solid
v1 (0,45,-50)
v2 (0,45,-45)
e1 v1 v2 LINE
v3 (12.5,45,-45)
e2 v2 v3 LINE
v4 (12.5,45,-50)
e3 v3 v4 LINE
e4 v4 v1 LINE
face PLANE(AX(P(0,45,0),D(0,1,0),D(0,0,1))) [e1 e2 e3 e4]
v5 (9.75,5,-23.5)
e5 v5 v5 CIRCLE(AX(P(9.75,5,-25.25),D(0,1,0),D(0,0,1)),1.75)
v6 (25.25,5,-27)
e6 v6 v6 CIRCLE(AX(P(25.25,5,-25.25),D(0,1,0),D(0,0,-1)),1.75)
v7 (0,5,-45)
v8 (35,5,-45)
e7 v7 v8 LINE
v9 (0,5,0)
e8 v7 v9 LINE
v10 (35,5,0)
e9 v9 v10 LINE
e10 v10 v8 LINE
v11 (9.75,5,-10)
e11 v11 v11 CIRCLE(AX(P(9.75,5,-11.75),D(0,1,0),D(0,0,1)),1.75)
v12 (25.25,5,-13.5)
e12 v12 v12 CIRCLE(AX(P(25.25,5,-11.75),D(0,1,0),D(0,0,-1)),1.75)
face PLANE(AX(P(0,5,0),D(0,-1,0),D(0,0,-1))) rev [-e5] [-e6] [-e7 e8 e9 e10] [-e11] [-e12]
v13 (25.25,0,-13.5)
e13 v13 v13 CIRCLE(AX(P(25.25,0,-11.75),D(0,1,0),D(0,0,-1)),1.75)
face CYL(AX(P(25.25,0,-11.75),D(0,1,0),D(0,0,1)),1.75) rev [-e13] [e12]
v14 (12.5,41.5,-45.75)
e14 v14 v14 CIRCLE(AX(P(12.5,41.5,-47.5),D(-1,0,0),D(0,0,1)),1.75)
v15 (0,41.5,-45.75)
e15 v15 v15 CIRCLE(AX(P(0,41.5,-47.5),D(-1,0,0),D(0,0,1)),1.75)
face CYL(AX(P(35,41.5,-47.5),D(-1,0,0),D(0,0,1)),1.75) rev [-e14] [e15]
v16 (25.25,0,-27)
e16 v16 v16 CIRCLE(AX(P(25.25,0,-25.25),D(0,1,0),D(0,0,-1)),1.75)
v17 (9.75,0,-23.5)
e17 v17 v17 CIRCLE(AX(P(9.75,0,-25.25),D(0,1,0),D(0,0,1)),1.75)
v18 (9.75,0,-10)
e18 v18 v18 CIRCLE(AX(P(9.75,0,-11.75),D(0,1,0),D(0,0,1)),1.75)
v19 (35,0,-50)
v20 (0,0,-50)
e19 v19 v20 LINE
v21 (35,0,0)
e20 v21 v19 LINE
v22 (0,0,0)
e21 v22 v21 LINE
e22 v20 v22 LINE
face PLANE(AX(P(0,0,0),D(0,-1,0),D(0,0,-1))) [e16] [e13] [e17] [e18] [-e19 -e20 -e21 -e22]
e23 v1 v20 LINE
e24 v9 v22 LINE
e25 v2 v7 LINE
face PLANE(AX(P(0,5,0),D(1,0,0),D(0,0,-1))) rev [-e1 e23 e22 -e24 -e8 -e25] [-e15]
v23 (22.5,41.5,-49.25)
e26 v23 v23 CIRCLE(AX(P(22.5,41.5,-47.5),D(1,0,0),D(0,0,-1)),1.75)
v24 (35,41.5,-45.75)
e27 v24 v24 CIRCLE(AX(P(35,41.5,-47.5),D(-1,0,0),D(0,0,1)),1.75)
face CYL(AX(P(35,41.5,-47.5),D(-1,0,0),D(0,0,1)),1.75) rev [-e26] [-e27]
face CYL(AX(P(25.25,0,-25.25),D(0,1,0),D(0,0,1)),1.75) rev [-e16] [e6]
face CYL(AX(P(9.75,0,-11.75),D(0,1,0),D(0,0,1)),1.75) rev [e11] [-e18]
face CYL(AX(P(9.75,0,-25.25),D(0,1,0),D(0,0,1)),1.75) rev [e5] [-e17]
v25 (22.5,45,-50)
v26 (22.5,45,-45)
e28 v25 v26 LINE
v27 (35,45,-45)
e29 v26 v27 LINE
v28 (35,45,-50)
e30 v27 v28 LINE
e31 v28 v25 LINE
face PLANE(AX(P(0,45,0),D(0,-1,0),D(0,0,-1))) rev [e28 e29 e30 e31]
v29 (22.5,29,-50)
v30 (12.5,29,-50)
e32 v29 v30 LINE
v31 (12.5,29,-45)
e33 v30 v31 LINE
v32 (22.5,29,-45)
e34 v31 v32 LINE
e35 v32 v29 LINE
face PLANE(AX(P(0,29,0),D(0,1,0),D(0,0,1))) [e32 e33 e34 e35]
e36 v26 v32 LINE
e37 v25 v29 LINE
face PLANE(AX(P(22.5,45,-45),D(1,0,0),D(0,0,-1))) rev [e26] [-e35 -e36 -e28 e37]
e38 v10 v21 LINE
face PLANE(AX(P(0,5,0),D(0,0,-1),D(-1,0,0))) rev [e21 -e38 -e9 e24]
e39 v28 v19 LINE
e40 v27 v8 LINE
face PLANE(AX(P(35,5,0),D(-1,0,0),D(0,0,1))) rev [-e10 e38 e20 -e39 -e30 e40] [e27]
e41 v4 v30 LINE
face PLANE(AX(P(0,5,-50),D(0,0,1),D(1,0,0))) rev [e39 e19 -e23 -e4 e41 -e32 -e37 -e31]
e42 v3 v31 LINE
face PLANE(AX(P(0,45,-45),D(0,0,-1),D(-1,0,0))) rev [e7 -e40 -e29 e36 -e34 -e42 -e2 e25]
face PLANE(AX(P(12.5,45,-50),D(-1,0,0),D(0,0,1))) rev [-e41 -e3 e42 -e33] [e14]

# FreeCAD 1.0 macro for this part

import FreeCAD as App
import Part
import Sketcher
from FreeCAD import Vector

doc = App.newDocument("Part")
params = doc.addObject("Spreadsheet::Sheet", "Params")
for row, (alias, value) in enumerate([
    ("sketch1_width", "35 mm"),
    ("sketch1_height", "50 mm"),
    ("pad1_length", "5 mm"),
    ("sketch2_diameter", "3.5 mm"),
    ("sketch3_height", "5 mm"),
    ("sketch3_width", "12.5 mm"),
    ("pad2_length", "40 mm"),
    ("sketch4_width", "10 mm"),
    ("sketch4_height", "5 mm"),
    ("pad3_length", "24 mm"),
    ("sketch5_diameter", "3.5 mm"),
], start=1):
    params.set(f"A{row}", alias)
    params.set(f"B{row}", "=" + value)
    params.setAlias(f"B{row}", alias)

body = doc.addObject("PartDesign::Body", "Body")

# Sketch on XZ plane
sketch1 = body.newObject("Sketcher::SketchObject", "Sketch")
sketch1.AttachmentSupport = (doc.getObject("XZ_Plane"), [""])
sketch1.MapMode = "FlatFace"
sketch1.addGeometry(Part.LineSegment(Vector(0, -50, 0), Vector(0, 0, 0)), False)
sketch1.addGeometry(Part.LineSegment(Vector(0, 0, 0), Vector(35, 0, 0)), False)
sketch1.addGeometry(Part.LineSegment(Vector(35, 0, 0), Vector(35, -50, 0)), False)
sketch1.addGeometry(Part.LineSegment(Vector(35, -50, 0), Vector(0, -50, 0)), False)
sketch1.addConstraint(Sketcher.Constraint("Coincident", 0, 2, 1, 1))
sketch1.addConstraint(Sketcher.Constraint("Coincident", 1, 2, 2, 1))
sketch1.addConstraint(Sketcher.Constraint("Coincident", 2, 2, 3, 1))
sketch1.addConstraint(Sketcher.Constraint("Coincident", 3, 2, 0, 1))
sketch1.addConstraint(Sketcher.Constraint("Vertical", 0))
sketch1.addConstraint(Sketcher.Constraint("Horizontal", 1))
sketch1.addConstraint(Sketcher.Constraint("Vertical", 2))
sketch1.addConstraint(Sketcher.Constraint("Horizontal", 3))
sketch1.addConstraint(Sketcher.Constraint("Coincident", 0, 2, -1, 1))
sketch1.addConstraint(Sketcher.Constraint("DistanceX", 1, 1, 1, 2, 35.0))
sketch1.addConstraint(Sketcher.Constraint("DistanceY", 0, 1, 0, 2, 50.0))
sketch1.setExpression("Constraints[9]", "Params.sketch1_width")
sketch1.setExpression("Constraints[10]", "Params.sketch1_height")
pad1 = body.newObject("PartDesign::Pad", "Pad")
pad1.Profile = sketch1
pad1.setExpression("Length", "Params.pad1_length")
pad1.Reversed = True

# Sketch on XZ plane
sketch2 = body.newObject("Sketcher::SketchObject", "Sketch001")
sketch2.AttachmentSupport = (doc.getObject("XZ_Plane"), [""])
sketch2.MapMode = "FlatFace"
sketch2.AttachmentOffset = App.Placement(Vector(0, 0, -5), App.Rotation())
sketch2.addGeometry(Part.Circle(Vector(9.8, -11.8, 0), Vector(0, 0, 1), 1.8), False)
sketch2.addGeometry(Part.Circle(Vector(9.8, -25.2, 0), Vector(0, 0, 1), 1.8), False)
sketch2.addGeometry(Part.Circle(Vector(25.2, -11.8, 0), Vector(0, 0, 1), 1.8), False)
sketch2.addGeometry(Part.Circle(Vector(25.2, -25.2, 0), Vector(0, 0, 1), 1.8), False)
sketch2.addConstraint(Sketcher.Constraint("Equal", 0, 1))
sketch2.addConstraint(Sketcher.Constraint("Equal", 1, 2))
sketch2.addConstraint(Sketcher.Constraint("Equal", 2, 3))
sketch2.addConstraint(Sketcher.Constraint("Horizontal", 0, 3, 2, 3))
sketch2.addConstraint(Sketcher.Constraint("Horizontal", 1, 3, 3, 3))
sketch2.addConstraint(Sketcher.Constraint("Vertical", 0, 3, 1, 3))
sketch2.addConstraint(Sketcher.Constraint("Vertical", 2, 3, 3, 3))
sketch2.addConstraint(Sketcher.Constraint("Diameter", 0, 3.5))
sketch2.addConstraint(Sketcher.Constraint("DistanceY", 1, 3, 0, 3, 13.5))
sketch2.addConstraint(Sketcher.Constraint("DistanceX", 0, 3, 2, 3, 15.5))
sketch2.addConstraint(Sketcher.Constraint("DistanceX", -1, 1, 0, 3, 9.75))
sketch2.addConstraint(Sketcher.Constraint("DistanceY", 0, 3, -1, 1, 11.75))
sketch2.setExpression("Constraints[7]", "Params.sketch2_diameter")
pocket1 = body.newObject("PartDesign::Pocket", "Pocket")
pocket1.Profile = sketch2
pocket1.Type = "ThroughAll"
pocket1.Reversed = True

# Sketch on XZ plane
sketch3 = body.newObject("Sketcher::SketchObject", "Sketch002")
sketch3.AttachmentSupport = (doc.getObject("XZ_Plane"), [""])
sketch3.MapMode = "FlatFace"
sketch3.AttachmentOffset = App.Placement(Vector(0, 0, -5), App.Rotation())
sketch3.addGeometry(Part.LineSegment(Vector(0, -50, 0), Vector(0, -45, 0)), False)
sketch3.addGeometry(Part.LineSegment(Vector(0, -45, 0), Vector(12, -45, 0)), False)
sketch3.addGeometry(Part.LineSegment(Vector(12, -45, 0), Vector(12, -50, 0)), False)
sketch3.addGeometry(Part.LineSegment(Vector(12, -50, 0), Vector(0, -50, 0)), False)
sketch3.addGeometry(Part.LineSegment(Vector(22, -50, 0), Vector(22, -45, 0)), False)
sketch3.addGeometry(Part.LineSegment(Vector(22, -45, 0), Vector(35, -45, 0)), False)
sketch3.addGeometry(Part.LineSegment(Vector(35, -45, 0), Vector(35, -50, 0)), False)
sketch3.addGeometry(Part.LineSegment(Vector(35, -50, 0), Vector(22, -50, 0)), False)
sketch3.addConstraint(Sketcher.Constraint("Coincident", 0, 2, 1, 1))
sketch3.addConstraint(Sketcher.Constraint("Coincident", 1, 2, 2, 1))
sketch3.addConstraint(Sketcher.Constraint("Coincident", 2, 2, 3, 1))
sketch3.addConstraint(Sketcher.Constraint("Coincident", 3, 2, 0, 1))
sketch3.addConstraint(Sketcher.Constraint("Coincident", 4, 2, 5, 1))
sketch3.addConstraint(Sketcher.Constraint("Coincident", 5, 2, 6, 1))
sketch3.addConstraint(Sketcher.Constraint("Coincident", 6, 2, 7, 1))
sketch3.addConstraint(Sketcher.Constraint("Coincident", 7, 2, 4, 1))
sketch3.addConstraint(Sketcher.Constraint("Vertical", 0))
sketch3.addConstraint(Sketcher.Constraint("Horizontal", 1))
sketch3.addConstraint(Sketcher.Constraint("Vertical", 2))
sketch3.addConstraint(Sketcher.Constraint("Horizontal", 3))
sketch3.addConstraint(Sketcher.Constraint("Vertical", 4))
sketch3.addConstraint(Sketcher.Constraint("Horizontal", 5))
sketch3.addConstraint(Sketcher.Constraint("Vertical", 6))
sketch3.addConstraint(Sketcher.Constraint("Horizontal", 7))
sketch3.addConstraint(Sketcher.Constraint("PointOnObject", 0, 2, -2))
sketch3.addConstraint(Sketcher.Constraint("Horizontal", 1, 2, 4, 2))
sketch3.addConstraint(Sketcher.Constraint("Horizontal", 3, 2, 6, 2))
sketch3.addConstraint(Sketcher.Constraint("Equal", 3, 5))
sketch3.addConstraint(Sketcher.Constraint("DistanceY", 0, 1, 0, 2, 5.0))
sketch3.addConstraint(Sketcher.Constraint("DistanceX", 1, 1, 1, 2, 12.5))
sketch3.addConstraint(Sketcher.Constraint("DistanceY", 0, 2, -1, 1, 45.0))
sketch3.addConstraint(Sketcher.Constraint("DistanceX", -1, 1, 5, 2, 35.0))
sketch3.setExpression("Constraints[20]", "Params.sketch3_height")
sketch3.setExpression("Constraints[21]", "Params.sketch3_width")
pad2 = body.newObject("PartDesign::Pad", "Pad001")
pad2.Profile = sketch3
pad2.setExpression("Length", "Params.pad2_length")
pad2.Reversed = True

# Sketch on XZ plane
sketch4 = body.newObject("Sketcher::SketchObject", "Sketch003")
sketch4.AttachmentSupport = (doc.getObject("XZ_Plane"), [""])
sketch4.MapMode = "FlatFace"
sketch4.AttachmentOffset = App.Placement(Vector(0, 0, -5), App.Rotation())
sketch4.addGeometry(Part.LineSegment(Vector(12, -50, 0), Vector(12, -45, 0)), False)
sketch4.addGeometry(Part.LineSegment(Vector(12, -45, 0), Vector(22, -45, 0)), False)
sketch4.addGeometry(Part.LineSegment(Vector(22, -45, 0), Vector(22, -50, 0)), False)
sketch4.addGeometry(Part.LineSegment(Vector(22, -50, 0), Vector(12, -50, 0)), False)
sketch4.addConstraint(Sketcher.Constraint("Coincident", 0, 2, 1, 1))
sketch4.addConstraint(Sketcher.Constraint("Coincident", 1, 2, 2, 1))
sketch4.addConstraint(Sketcher.Constraint("Coincident", 2, 2, 3, 1))
sketch4.addConstraint(Sketcher.Constraint("Coincident", 3, 2, 0, 1))
sketch4.addConstraint(Sketcher.Constraint("Vertical", 0))
sketch4.addConstraint(Sketcher.Constraint("Horizontal", 1))
sketch4.addConstraint(Sketcher.Constraint("Vertical", 2))
sketch4.addConstraint(Sketcher.Constraint("Horizontal", 3))
sketch4.addConstraint(Sketcher.Constraint("DistanceX", 1, 1, 1, 2, 10.0))
sketch4.addConstraint(Sketcher.Constraint("DistanceY", 0, 1, 0, 2, 5.0))
sketch4.addConstraint(Sketcher.Constraint("DistanceY", 0, 2, -1, 1, 45.0))
sketch4.addConstraint(Sketcher.Constraint("DistanceX", -1, 1, 0, 2, 12.5))
sketch4.setExpression("Constraints[8]", "Params.sketch4_width")
sketch4.setExpression("Constraints[9]", "Params.sketch4_height")
pad3 = body.newObject("PartDesign::Pad", "Pad002")
pad3.Profile = sketch4
pad3.setExpression("Length", "Params.pad3_length")
pad3.Reversed = True

# Sketch on YZ plane
sketch5 = body.newObject("Sketcher::SketchObject", "Sketch004")
sketch5.AttachmentSupport = (doc.getObject("YZ_Plane"), [""])
sketch5.MapMode = "FlatFace"
sketch5.addGeometry(Part.Circle(Vector(41.5, -47.5, 0), Vector(0, 0, 1), 1.8), False)
sketch5.addConstraint(Sketcher.Constraint("Diameter", 0, 3.5))
sketch5.addConstraint(Sketcher.Constraint("DistanceX", -1, 1, 0, 3, 41.5))
sketch5.addConstraint(Sketcher.Constraint("DistanceY", 0, 3, -1, 1, 47.5))
sketch5.setExpression("Constraints[0]", "Params.sketch5_diameter")
pocket2 = body.newObject("PartDesign::Pocket", "Pocket001")
pocket2.Profile = sketch5
pocket2.Type = "ThroughAll"
pocket2.Reversed = True

doc.recompute()
